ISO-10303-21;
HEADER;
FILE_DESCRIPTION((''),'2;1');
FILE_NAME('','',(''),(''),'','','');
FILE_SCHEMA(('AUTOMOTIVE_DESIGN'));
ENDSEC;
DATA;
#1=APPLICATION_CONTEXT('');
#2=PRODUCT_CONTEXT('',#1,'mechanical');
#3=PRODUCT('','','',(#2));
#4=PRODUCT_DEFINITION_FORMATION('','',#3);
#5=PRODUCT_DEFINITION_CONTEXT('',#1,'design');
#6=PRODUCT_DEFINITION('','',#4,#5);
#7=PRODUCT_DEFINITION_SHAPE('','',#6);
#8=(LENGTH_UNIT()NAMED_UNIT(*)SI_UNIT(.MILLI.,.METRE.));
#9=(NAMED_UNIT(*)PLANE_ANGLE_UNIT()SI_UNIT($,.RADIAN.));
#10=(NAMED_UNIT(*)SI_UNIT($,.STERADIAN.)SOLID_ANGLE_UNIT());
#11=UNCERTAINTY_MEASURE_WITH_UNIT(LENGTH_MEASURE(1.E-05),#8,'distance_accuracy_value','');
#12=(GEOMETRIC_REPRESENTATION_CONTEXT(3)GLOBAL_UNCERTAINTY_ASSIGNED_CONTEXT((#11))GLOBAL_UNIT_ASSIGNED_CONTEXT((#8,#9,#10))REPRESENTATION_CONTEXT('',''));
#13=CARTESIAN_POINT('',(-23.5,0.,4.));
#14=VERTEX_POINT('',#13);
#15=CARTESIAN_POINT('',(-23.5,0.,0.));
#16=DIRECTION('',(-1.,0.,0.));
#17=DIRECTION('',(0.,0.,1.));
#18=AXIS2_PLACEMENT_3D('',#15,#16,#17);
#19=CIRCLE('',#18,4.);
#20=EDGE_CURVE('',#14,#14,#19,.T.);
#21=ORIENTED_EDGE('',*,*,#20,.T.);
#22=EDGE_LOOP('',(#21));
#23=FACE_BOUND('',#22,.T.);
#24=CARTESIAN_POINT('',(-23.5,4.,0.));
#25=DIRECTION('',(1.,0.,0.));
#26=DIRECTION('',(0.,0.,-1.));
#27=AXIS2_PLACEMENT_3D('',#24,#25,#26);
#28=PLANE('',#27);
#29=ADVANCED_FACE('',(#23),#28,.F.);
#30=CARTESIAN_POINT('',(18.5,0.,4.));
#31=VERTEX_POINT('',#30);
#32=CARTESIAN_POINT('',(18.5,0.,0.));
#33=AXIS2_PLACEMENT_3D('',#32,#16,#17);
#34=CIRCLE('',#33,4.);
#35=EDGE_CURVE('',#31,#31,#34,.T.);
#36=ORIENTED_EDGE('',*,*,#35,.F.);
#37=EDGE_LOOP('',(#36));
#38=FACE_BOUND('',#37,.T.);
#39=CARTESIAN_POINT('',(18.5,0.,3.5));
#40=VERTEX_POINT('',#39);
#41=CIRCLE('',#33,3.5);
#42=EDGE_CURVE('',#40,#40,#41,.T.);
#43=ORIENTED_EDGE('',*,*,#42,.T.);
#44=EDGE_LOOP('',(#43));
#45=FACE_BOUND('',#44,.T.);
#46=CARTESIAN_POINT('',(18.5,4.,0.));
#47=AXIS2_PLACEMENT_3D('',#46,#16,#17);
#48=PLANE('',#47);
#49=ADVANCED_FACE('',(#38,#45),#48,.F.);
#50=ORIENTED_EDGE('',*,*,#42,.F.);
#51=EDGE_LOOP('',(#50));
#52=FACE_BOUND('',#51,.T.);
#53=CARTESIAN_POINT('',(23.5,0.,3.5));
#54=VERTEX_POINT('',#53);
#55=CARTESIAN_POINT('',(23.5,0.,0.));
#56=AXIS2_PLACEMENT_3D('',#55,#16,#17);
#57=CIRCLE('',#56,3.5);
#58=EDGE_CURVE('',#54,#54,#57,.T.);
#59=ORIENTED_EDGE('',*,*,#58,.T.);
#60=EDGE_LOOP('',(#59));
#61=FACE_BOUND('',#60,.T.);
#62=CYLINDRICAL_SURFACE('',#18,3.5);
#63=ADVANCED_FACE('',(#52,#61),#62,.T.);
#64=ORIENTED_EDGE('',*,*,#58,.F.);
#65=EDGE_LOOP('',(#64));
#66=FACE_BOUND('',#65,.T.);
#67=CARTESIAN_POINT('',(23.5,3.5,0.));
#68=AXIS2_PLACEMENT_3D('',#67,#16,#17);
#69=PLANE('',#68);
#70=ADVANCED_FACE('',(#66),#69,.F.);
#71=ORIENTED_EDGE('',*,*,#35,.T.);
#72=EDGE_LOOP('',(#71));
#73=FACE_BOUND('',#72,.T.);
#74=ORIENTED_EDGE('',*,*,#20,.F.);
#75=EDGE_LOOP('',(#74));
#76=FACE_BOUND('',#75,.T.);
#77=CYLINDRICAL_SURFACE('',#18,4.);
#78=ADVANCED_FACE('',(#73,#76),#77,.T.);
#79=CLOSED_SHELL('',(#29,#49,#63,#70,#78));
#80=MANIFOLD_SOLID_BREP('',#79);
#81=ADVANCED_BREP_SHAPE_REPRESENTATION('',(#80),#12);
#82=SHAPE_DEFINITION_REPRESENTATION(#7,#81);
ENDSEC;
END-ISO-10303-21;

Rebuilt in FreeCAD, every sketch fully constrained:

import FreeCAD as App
import Part
import Sketcher
from FreeCAD import Vector
Q = App.Units.Quantity


def add_polygon(sketch, points):
    """Adds a closed chain of lines whose ends are joined by coincident constraints."""
    first, n = sketch.GeometryCount, len(points)
    for a, b in zip(points, points[1:] + points[:1]):
        sketch.addGeometry(Part.LineSegment(App.Vector(*a, 0), App.Vector(*b, 0)), False)
    for i in range(n):
        sketch.addConstraint(Sketcher.Constraint("Coincident", first + i, 2, first + (i + 1) % n, 1))

doc = App.newDocument("Part")
body = doc.addObject("PartDesign::Body", "Body")

# Sketch on XY plane
sketch1 = body.newObject("Sketcher::SketchObject", "Sketch")
sketch1.AttachmentSupport = (doc.getObject("XY_Plane"), [""])
sketch1.MapMode = "FlatFace"
add_polygon(sketch1, [(-23.5, 0), (23.5, 0), (23.5, 3.5), (18.5, 3.5), (18.5, 4), (-23.5, 4)])  # lines 0-5
sketch1.addConstraint(Sketcher.Constraint("Horizontal", 0))
sketch1.addConstraint(Sketcher.Constraint("Vertical", 1))
sketch1.addConstraint(Sketcher.Constraint("Horizontal", 2))
sketch1.addConstraint(Sketcher.Constraint("Vertical", 3))
sketch1.addConstraint(Sketcher.Constraint("Horizontal", 4))
sketch1.addConstraint(Sketcher.Constraint("Vertical", 5))
sketch1.addConstraint(Sketcher.Constraint("Symmetric", 0, 2, 5, 2, -1, 1))
sketch1.addConstraint(Sketcher.Constraint("DistanceX", 0, 1, 0, 2, Q("47 mm")))
sketch1.addConstraint(Sketcher.Constraint("DistanceX", 2, 2, 2, 1, Q("5 mm")))
sketch1.addConstraint(Sketcher.Constraint("DistanceY", 5, 2, 5, 1, Q("4 mm")))
sketch1.addConstraint(Sketcher.Constraint("DistanceY", 1, 1, 1, 2, Q("3.5 mm")))
revolution = body.newObject("PartDesign::Revolution", "Revolution")
revolution.Profile = sketch1
revolution.ReferenceAxis = (sketch1, ["H_Axis"])
revolution.Angle = 360

doc.recompute()
